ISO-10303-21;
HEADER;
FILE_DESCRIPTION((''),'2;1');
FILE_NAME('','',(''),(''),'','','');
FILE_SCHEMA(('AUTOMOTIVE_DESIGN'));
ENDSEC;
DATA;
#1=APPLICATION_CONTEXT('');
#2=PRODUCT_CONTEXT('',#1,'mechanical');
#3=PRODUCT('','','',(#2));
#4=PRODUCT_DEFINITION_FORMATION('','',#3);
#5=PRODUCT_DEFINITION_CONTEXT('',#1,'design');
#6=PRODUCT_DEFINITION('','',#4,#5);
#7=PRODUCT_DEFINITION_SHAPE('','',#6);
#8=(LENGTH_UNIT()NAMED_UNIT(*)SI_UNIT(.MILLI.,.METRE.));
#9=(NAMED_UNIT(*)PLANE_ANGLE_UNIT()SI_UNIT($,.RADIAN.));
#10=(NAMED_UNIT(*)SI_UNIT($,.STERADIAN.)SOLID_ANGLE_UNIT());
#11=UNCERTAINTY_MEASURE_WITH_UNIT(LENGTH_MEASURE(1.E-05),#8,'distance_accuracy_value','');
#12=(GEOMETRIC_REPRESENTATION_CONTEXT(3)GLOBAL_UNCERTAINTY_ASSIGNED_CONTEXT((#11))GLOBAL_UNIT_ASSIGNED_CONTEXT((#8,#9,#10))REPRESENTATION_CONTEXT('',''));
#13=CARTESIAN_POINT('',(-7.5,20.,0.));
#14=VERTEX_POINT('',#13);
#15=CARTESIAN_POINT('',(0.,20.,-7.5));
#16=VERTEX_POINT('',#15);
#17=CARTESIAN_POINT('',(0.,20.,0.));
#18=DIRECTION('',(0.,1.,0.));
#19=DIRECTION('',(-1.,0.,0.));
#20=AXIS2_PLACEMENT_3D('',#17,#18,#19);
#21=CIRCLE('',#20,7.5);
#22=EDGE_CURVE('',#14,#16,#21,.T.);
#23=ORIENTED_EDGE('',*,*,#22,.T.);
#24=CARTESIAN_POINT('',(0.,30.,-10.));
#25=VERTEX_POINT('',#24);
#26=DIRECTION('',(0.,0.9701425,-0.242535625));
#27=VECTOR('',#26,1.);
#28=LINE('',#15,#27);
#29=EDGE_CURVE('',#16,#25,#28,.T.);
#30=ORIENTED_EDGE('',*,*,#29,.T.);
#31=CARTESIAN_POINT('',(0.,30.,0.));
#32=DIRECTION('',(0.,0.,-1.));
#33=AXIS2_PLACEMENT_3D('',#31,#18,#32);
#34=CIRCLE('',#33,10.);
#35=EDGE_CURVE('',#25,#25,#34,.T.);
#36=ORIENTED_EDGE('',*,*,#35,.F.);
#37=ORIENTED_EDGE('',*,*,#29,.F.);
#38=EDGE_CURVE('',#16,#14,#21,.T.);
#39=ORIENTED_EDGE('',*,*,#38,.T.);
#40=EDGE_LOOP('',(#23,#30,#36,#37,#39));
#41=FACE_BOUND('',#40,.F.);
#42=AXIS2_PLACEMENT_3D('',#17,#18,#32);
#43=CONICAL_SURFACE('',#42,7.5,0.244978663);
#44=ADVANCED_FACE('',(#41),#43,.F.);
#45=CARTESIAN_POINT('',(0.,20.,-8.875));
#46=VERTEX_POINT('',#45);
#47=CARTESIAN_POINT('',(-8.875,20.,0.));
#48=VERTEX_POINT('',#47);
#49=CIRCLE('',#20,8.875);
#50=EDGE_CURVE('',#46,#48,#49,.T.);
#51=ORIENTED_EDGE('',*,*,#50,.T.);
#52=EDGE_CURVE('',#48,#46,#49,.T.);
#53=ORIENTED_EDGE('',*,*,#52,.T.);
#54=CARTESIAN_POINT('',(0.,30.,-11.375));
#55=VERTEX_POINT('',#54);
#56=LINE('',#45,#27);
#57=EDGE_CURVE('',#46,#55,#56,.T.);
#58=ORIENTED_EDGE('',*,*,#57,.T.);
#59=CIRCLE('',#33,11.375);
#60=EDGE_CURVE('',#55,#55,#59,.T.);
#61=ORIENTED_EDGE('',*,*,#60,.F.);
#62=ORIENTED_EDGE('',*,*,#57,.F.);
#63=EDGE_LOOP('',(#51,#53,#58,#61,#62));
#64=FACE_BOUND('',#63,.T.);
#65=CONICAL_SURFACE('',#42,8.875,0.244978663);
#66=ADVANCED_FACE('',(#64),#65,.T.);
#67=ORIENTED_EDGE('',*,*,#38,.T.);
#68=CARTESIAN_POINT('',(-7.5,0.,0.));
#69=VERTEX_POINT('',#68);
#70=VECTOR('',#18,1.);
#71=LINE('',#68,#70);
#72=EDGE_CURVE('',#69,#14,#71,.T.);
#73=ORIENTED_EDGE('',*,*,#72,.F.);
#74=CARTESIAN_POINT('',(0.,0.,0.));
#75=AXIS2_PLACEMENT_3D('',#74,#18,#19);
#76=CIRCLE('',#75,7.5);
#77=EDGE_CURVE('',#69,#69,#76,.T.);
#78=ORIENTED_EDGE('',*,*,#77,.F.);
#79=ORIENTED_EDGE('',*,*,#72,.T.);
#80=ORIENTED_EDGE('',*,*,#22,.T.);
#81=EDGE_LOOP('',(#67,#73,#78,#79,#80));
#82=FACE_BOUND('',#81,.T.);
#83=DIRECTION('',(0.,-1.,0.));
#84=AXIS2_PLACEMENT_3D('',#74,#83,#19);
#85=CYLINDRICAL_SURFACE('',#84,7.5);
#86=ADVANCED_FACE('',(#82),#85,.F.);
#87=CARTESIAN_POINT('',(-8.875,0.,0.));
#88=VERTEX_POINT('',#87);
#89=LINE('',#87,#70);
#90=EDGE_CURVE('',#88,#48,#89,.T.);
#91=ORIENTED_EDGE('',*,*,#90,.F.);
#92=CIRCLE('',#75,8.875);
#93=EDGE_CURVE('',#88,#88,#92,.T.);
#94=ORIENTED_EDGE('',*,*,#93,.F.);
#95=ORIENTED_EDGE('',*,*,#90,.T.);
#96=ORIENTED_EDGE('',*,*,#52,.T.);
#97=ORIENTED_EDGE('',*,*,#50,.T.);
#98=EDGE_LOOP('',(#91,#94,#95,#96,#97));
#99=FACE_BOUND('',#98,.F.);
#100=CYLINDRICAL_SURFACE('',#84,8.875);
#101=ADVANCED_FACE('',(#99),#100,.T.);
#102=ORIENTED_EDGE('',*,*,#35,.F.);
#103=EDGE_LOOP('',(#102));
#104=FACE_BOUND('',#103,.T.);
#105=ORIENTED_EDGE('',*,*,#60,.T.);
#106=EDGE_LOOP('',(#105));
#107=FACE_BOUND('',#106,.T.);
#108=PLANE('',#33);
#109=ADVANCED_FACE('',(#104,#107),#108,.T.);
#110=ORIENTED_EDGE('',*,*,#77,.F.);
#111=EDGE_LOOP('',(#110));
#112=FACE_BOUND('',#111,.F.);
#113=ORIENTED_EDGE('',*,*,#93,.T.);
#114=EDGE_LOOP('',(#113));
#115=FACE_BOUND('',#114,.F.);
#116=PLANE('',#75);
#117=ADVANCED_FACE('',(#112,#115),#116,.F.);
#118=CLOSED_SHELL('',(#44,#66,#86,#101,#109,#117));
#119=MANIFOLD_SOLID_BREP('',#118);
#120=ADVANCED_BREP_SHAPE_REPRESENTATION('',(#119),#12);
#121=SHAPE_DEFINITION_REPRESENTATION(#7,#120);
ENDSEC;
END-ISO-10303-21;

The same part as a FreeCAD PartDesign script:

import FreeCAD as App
import Part
import Sketcher
from FreeCAD import Vector


def add_polygon(sketch, points):
    """Adds a closed chain of lines whose ends are joined by coincident constraints."""
    first, n = sketch.GeometryCount, len(points)
    for a, b in zip(points, points[1:] + points[:1]):
        sketch.addGeometry(Part.LineSegment(App.Vector(*a, 0), App.Vector(*b, 0)), False)
    for i in range(n):
        sketch.addConstraint(Sketcher.Constraint("Coincident", first + i, 2, first + (i + 1) % n, 1))

doc = App.newDocument("Part")
body = doc.addObject("PartDesign::Body", "Body")

sketch1 = body.newObject("Sketcher::SketchObject", "Sketch")
sketch1.AttachmentSupport = (doc.getObject("XZ_Plane"), [""])
sketch1.MapMode = "FlatFace"
sketch1.addGeometry(Part.Circle(Vector(0, 0, 0), Vector(0, 0, 1), 9), False)
sketch1.addGeometry(Part.Circle(Vector(0, 0, 0), Vector(0, 0, 1), 8), False)
sketch1.addConstraint(Sketcher.Constraint("Coincident", 0, 3, -1, 1))
sketch1.addConstraint(Sketcher.Constraint("Coincident", 1, 3, -1, 1))
sketch1.addConstraint(Sketcher.Constraint("Diameter", 1, 15.0))
sketch1.addConstraint(Sketcher.Constraint("Diameter", 0, 17.75))
pad1 = body.newObject("PartDesign::Pad", "Pad")
pad1.Profile = sketch1
pad1.Length = 20
pad1.Reversed = True

sketch2 = body.newObject("Sketcher::SketchObject", "Sketch001")
sketch2.AttachmentSupport = (doc.getObject("YZ_Plane"), [""])
sketch2.MapMode = "FlatFace"
add_polygon(sketch2, [(20, -7.5), (20, -8.9), (30, -11.4), (30, -10)])
sketch2.addConstraint(Sketcher.Constraint("Vertical", 0))
sketch2.addConstraint(Sketcher.Constraint("Vertical", 2))
sketch2.addConstraint(Sketcher.Constraint("Parallel", 1, 3))
sketch2.addConstraint(Sketcher.Constraint("DistanceY", 2, 2, -1, 1, 10.0))
sketch2.addConstraint(Sketcher.Constraint("DistanceX", 0, 2, 1, 2, 10.0))
sketch2.addConstraint(Sketcher.Constraint("DistanceX", -1, 1, 0, 2, 20.0))
sketch2.addConstraint(Sketcher.Constraint("DistanceY", 3, 2, -1, 1, 7.5))
sketch2.addConstraint(Sketcher.Constraint("DistanceY", 0, 2, 0, 1, 1.375))
revolution = body.newObject("PartDesign::Revolution", "Revolution")
revolution.Profile = sketch2
revolution.ReferenceAxis = (sketch2, ["H_Axis"])
revolution.Angle = 360

doc.recompute()
